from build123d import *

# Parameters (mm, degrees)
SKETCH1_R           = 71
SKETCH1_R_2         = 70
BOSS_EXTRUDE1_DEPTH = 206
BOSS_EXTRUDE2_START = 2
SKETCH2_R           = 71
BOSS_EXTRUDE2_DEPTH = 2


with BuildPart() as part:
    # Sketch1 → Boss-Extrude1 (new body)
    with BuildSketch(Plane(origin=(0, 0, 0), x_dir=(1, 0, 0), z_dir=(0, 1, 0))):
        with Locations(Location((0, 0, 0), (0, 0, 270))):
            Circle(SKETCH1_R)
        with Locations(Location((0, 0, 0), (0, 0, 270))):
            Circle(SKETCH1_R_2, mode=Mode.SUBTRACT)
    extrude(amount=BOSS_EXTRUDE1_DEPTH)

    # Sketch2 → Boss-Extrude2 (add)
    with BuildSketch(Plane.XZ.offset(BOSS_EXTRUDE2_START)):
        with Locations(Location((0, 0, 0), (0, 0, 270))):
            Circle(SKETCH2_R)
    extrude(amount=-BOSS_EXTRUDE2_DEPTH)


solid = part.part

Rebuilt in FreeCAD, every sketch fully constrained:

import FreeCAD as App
import Part
import Sketcher

doc = App.newDocument("Part")
body = doc.addObject("PartDesign::Body", "Body")

sketch1 = doc.addObject("Sketcher::SketchObject", "Sketch")
body.addObject(sketch1)
sketch1.AttachmentSupport = (doc.XZ_Plane, [""])
sketch1.MapMode = "FlatFace"
sketch1.addGeometry([
    Part.Circle(App.Vector(0, 0, 0), App.Vector(0, 0, 1), 71),
    Part.Circle(App.Vector(0, 0, 0), App.Vector(0, 0, 1), 70),
], False)
sketch1.addConstraint([
    Sketcher.Constraint("Coincident", 0, 3, -1, 1),
    Sketcher.Constraint("Coincident", 1, 3, -1, 1),
    Sketcher.Constraint("Diameter", 0, 142.0),
    Sketcher.Constraint("Diameter", 1, 140.0),
])
pad1 = doc.addObject("PartDesign::Pad", "Pad")
body.addObject(pad1)
pad1.Profile = sketch1
pad1.Length = 206
pad1.Reversed = True

sketch2 = doc.addObject("Sketcher::SketchObject", "Sketch001")
body.addObject(sketch2)
sketch2.AttachmentSupport = (doc.XZ_Plane, [""])
sketch2.MapMode = "FlatFace"
sketch2.AttachmentOffset = App.Placement(App.Vector(0, 0, 2), App.Rotation())
sketch2.addGeometry(Part.Circle(App.Vector(0, 0, 0), App.Vector(0, 0, 1), 71), False)
sketch2.addConstraint([
    Sketcher.Constraint("Coincident", 0, 3, -1, 1),
    Sketcher.Constraint("Diameter", 0, 142.0),
])
pad2 = doc.addObject("PartDesign::Pad", "Pad001")
body.addObject(pad2)
pad2.Profile = sketch2
pad2.Length = 2
pad2.Reversed = True

doc.recompute()
